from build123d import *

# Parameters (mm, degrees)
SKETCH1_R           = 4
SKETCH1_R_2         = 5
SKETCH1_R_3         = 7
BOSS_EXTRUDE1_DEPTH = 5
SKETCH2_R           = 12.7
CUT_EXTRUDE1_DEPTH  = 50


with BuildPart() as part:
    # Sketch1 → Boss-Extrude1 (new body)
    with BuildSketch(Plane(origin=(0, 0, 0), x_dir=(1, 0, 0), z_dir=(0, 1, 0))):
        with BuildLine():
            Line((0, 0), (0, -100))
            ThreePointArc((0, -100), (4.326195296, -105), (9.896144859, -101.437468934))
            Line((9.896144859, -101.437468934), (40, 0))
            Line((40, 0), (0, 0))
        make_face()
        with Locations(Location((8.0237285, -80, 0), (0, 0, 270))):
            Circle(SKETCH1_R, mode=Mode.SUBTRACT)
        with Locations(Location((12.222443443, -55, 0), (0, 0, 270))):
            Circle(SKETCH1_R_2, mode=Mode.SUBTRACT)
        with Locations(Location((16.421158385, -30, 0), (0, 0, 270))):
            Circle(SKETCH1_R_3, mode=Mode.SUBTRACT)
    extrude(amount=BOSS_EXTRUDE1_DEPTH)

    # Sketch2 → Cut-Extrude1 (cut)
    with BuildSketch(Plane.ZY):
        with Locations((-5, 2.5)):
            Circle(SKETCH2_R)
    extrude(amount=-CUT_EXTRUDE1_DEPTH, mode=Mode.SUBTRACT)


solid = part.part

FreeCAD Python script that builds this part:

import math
import FreeCAD as App
import Part
import Sketcher

V = App.Vector
Q = App.Units.Quantity

doc = App.newDocument("Part")
params = doc.addObject("Spreadsheet::Sheet", "Params")
for row, (alias, value) in enumerate([
    ("sketch1_diameter", "8 mm"),
    ("sketch1_diameter2", "10 mm"),
    ("sketch1_diameter3", "14 mm"),
    ("sketch1_width", "40 mm"),
    ("sketch1_height", "100 mm"),
    ("pad1_length", "5 mm"),
    ("sketch2_diameter", "25.4 mm"),
    ("pocket1_length", "50 mm"),
], start=1):
    params.set(f"A{row}", alias)
    params.set(f"B{row}", "=" + value)
    params.setAlias(f"B{row}", alias)

body = doc.addObject("PartDesign::Body", "Body")

# Sketch on XZ plane
sketch1 = doc.addObject("Sketcher::SketchObject", "Sketch")
body.addObject(sketch1)
sketch1.AttachmentSupport = (doc.XZ_Plane, [""])
sketch1.MapMode = "FlatFace"
sketch1.addGeometry(Part.LineSegment(V(0, 0, 0), V(0, 100, 0)), False)
sketch1.addGeometry(Part.ArcOfCircle(Part.Circle(V(5.052473, 100, 0), V(0, 0, 1), 5.052473), math.radians(16.529443), math.radians(180)), False)
sketch1.addGeometry(Part.LineSegment(V(9.896145, 101.437469, 0), V(40, 0, 0)), False)
sketch1.addGeometry(Part.LineSegment(V(40, 0, 0), V(0, 0, 0)), False)
sketch1.addGeometry(Part.Circle(V(8.023729, 80, 0), V(0, 0, 1), 4), False)
sketch1.addGeometry(Part.Circle(V(12.222443, 55, 0), V(0, 0, 1), 5), False)
sketch1.addGeometry(Part.Circle(V(16.421158, 30, 0), V(0, 0, 1), 7), False)
sketch1.addConstraint(Sketcher.Constraint("Tangent", 0, 2, 1, 2))
sketch1.addConstraint(Sketcher.Constraint("Tangent", 1, 1, 2, 1))
sketch1.addConstraint(Sketcher.Constraint("Coincident", 2, 2, 3, 1))
sketch1.addConstraint(Sketcher.Constraint("Coincident", 3, 2, 0, 1))
sketch1.addConstraint(Sketcher.Constraint("Vertical", 0))
sketch1.addConstraint(Sketcher.Constraint("Horizontal", 3))
sketch1.addConstraint(Sketcher.Constraint("Coincident", 3, 2, -1, 1))
sketch1.addConstraint(Sketcher.Constraint("Diameter", 4, Q("8 mm")))
sketch1.addConstraint(Sketcher.Constraint("Diameter", 5, Q("10 mm")))
sketch1.addConstraint(Sketcher.Constraint("Diameter", 6, Q("14 mm")))
sketch1.addConstraint(Sketcher.Constraint("DistanceX", 3, 2, 3, 1, Q("40 mm")))
sketch1.addConstraint(Sketcher.Constraint("DistanceY", 0, 1, 0, 2, Q("100 mm")))
sketch1.addConstraint(Sketcher.Constraint("DistanceY", -1, 1, 4, 3, Q("80 mm")))
sketch1.addConstraint(Sketcher.Constraint("DistanceY", -1, 1, 5, 3, Q("55 mm")))
sketch1.addConstraint(Sketcher.Constraint("DistanceY", -1, 1, 6, 3, Q("30 mm")))
sketch1.addConstraint(Sketcher.Constraint("Radius", 1, Q("5.052473 mm")))
sketch1.addConstraint(Sketcher.Constraint("DistanceX", 1, 1, 5, 3, Q("2.326299 mm")))
sketch1.addConstraint(Sketcher.Constraint("DistanceX", -1, 1, 4, 3, Q("8.023729 mm")))
sketch1.addConstraint(Sketcher.Constraint("DistanceX", -1, 1, 6, 3, Q("16.421158 mm")))
sketch1.setExpression("Constraints[7]", "Params.sketch1_diameter")
sketch1.setExpression("Constraints[8]", "Params.sketch1_diameter2")
sketch1.setExpression("Constraints[9]", "Params.sketch1_diameter3")
sketch1.setExpression("Constraints[10]", "Params.sketch1_width")
sketch1.setExpression("Constraints[11]", "Params.sketch1_height")
pad1 = doc.addObject("PartDesign::Pad", "Pad")
body.addObject(pad1)
pad1.Profile = sketch1
pad1.setExpression("Length", "Params.pad1_length")
pad1.Reversed = True

# Sketch on YZ plane
sketch2 = doc.addObject("Sketcher::SketchObject", "Sketch001")
body.addObject(sketch2)
sketch2.AttachmentSupport = (doc.YZ_Plane, [""])
sketch2.MapMode = "FlatFace"
sketch2.addGeometry(Part.Circle(V(2.5, -5, 0), V(0, 0, 1), 12.7), False)
sketch2.addConstraint(Sketcher.Constraint("Diameter", 0, Q("25.4 mm")))
sketch2.addConstraint(Sketcher.Constraint("DistanceY", 0, 3, -1, 1, Q("5 mm")))
sketch2.addConstraint(Sketcher.Constraint("DistanceX", -1, 1, 0, 3, Q("2.5 mm")))
sketch2.setExpression("Constraints[0]", "Params.sketch2_diameter")
pocket1 = doc.addObject("PartDesign::Pocket", "Pocket")
body.addObject(pocket1)
pocket1.Profile = sketch2
pocket1.setExpression("Length", "Params.pocket1_length")
pocket1.Reversed = True

doc.recompute()
